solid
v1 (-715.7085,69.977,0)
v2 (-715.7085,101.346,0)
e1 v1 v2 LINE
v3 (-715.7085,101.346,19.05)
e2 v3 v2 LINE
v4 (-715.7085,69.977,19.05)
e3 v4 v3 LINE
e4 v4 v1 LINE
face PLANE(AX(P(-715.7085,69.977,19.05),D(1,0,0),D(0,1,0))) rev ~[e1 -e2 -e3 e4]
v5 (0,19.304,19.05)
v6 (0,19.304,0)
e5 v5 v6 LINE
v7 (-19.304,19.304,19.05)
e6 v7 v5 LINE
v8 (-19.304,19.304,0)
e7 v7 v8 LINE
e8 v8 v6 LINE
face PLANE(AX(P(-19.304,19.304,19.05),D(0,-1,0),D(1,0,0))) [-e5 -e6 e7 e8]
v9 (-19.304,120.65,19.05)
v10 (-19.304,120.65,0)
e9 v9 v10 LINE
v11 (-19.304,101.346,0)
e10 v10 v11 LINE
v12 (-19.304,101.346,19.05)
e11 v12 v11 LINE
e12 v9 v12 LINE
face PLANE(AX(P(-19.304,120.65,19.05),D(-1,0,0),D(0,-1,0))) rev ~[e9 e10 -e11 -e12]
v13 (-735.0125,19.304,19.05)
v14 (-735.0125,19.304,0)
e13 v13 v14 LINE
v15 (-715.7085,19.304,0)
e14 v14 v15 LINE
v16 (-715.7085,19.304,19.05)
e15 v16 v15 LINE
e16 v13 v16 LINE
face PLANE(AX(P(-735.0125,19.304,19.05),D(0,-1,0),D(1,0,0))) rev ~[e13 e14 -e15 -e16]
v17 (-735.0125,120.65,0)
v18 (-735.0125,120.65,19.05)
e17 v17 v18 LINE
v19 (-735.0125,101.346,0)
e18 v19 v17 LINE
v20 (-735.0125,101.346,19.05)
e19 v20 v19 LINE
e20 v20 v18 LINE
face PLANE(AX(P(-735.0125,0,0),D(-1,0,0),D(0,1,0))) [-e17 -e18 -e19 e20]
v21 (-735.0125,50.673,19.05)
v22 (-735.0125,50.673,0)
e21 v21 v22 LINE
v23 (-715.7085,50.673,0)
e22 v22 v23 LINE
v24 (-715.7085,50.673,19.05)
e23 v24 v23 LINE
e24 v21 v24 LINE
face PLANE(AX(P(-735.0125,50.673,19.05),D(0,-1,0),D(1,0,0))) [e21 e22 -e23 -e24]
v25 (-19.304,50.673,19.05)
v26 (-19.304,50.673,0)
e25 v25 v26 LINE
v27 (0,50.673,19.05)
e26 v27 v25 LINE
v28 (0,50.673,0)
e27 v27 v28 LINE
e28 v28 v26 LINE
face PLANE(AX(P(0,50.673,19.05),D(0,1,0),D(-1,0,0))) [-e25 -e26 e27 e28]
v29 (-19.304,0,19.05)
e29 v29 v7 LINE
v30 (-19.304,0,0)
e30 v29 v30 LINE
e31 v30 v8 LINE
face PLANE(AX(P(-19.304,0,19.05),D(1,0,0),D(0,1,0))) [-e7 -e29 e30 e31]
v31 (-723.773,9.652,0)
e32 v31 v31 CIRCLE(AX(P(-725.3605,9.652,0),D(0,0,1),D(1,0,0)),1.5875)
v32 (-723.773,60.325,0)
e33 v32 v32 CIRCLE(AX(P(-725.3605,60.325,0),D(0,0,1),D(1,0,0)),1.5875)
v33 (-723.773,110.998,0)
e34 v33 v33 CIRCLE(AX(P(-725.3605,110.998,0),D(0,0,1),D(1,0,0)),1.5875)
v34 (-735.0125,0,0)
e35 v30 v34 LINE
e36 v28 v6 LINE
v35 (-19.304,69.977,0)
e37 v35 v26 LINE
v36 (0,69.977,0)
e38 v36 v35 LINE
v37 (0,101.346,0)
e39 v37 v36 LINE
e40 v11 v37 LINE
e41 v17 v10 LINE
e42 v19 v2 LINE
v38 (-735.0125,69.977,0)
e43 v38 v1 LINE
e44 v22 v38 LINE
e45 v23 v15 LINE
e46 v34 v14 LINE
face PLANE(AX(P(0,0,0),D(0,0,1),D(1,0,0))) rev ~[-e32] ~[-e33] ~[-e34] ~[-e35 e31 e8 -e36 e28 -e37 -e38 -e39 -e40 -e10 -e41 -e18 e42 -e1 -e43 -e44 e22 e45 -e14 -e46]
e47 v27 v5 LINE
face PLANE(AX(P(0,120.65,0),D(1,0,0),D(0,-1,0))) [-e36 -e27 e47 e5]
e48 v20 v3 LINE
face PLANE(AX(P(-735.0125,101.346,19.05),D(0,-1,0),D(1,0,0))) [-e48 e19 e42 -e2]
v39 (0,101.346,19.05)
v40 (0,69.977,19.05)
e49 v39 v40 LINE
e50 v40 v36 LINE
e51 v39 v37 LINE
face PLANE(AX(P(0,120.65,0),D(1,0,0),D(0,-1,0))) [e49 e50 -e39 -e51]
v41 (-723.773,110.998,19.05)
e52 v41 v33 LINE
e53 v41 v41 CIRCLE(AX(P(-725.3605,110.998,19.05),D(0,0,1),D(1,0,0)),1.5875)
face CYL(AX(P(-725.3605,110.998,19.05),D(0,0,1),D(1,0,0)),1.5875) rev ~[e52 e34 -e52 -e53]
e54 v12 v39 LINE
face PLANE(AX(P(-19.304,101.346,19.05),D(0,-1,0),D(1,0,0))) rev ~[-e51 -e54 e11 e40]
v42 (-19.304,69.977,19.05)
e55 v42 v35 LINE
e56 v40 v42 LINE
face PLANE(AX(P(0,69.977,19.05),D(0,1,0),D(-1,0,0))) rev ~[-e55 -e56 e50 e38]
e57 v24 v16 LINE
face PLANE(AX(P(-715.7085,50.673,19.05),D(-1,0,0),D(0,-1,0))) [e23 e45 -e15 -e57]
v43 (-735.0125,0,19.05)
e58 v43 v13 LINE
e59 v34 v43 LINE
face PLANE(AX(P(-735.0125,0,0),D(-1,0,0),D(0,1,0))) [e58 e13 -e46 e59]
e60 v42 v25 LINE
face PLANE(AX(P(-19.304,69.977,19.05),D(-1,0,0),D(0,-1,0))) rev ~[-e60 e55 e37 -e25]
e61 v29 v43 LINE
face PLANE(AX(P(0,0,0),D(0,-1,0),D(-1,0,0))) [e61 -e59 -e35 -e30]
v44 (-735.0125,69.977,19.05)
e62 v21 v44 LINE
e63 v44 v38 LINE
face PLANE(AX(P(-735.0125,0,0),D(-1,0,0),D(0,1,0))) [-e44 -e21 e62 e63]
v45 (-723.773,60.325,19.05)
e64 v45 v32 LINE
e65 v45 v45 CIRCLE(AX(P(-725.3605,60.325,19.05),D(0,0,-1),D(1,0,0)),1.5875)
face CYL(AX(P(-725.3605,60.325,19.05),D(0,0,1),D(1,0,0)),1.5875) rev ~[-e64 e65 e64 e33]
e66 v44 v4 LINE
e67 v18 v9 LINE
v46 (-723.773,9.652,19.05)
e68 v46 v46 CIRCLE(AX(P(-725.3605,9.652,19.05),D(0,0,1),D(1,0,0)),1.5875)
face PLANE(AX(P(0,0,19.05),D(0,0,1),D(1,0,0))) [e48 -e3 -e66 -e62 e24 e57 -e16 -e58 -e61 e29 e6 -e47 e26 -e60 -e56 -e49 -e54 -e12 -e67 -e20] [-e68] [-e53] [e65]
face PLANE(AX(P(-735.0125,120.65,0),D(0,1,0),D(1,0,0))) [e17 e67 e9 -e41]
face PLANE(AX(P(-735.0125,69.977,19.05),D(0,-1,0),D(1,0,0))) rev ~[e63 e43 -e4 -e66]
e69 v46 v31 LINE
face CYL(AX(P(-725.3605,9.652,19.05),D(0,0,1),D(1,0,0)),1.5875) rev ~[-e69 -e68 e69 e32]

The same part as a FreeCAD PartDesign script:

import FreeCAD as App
import Part
import Sketcher
Q = App.Units.Quantity

doc = App.newDocument("Part")
params = doc.addObject("Spreadsheet::Sheet", "Params")
for row, (alias, value) in enumerate([
    ("sketch1_height", "4.75 in"),
    ("sketch1_width", "28.9375 in"),
    ("pad1_length", "0.75 in"),
    ("sketch2_diameter", "0.125 in"),
    ("sketch2_width", "0.76 in"),
    ("sketch2_height", "1.235 in"),
], start=1):
    params.set(f"A{row}", alias)
    params.set(f"B{row}", "=" + value)
    params.setAlias(f"B{row}", alias)

body = doc.addObject("PartDesign::Body", "Body")

sketch1 = body.newObject("Sketcher::SketchObject", "Sketch")
sketch1.AttachmentSupport = (doc.getObject("XY_Plane"), [""])
sketch1.MapMode = "FlatFace"
sketch1.addGeometry([
    Part.LineSegment(App.Vector(-735.0125, 0, 0), App.Vector(0, 0, 0)),
    Part.LineSegment(App.Vector(0, 0, 0), App.Vector(0, 120.65, 0)),
    Part.LineSegment(App.Vector(0, 120.65, 0), App.Vector(-735.0125, 120.65, 0)),
    Part.LineSegment(App.Vector(-735.0125, 120.65, 0), App.Vector(-735.0125, 0, 0)),
], False)
sketch1.addConstraint([
    Sketcher.Constraint("Coincident", 0, 2, 1, 1),
    Sketcher.Constraint("Coincident", 1, 2, 2, 1),
    Sketcher.Constraint("Coincident", 2, 2, 3, 1),
    Sketcher.Constraint("Coincident", 3, 2, 0, 1),
    Sketcher.Constraint("Horizontal", 0),
    Sketcher.Constraint("Vertical", 1),
    Sketcher.Constraint("Horizontal", 2),
    Sketcher.Constraint("Vertical", 3),
    Sketcher.Constraint("Coincident", 0, 2, -1, 1),
    Sketcher.Constraint("DistanceY", 1, 1, 1, 2, Q("4.75 in")),
    Sketcher.Constraint("DistanceX", 0, 1, 0, 2, Q("28.9375 in")),
])
sketch1.setExpression("Constraints[9]", "Params.sketch1_height")
sketch1.setExpression("Constraints[10]", "Params.sketch1_width")
pad1 = body.newObject("PartDesign::Pad", "Pad")
pad1.Profile = sketch1
pad1.setExpression("Length", "Params.pad1_length")

sketch2 = body.newObject("Sketcher::SketchObject", "Sketch001")
sketch2.AttachmentSupport = (doc.getObject("XY_Plane"), [""])
sketch2.MapMode = "FlatFace"
sketch2.AttachmentOffset = App.Placement(App.Vector(0, 0, 0.75 * 25.4), App.Rotation())
sketch2.addGeometry([
    Part.LineSegment(App.Vector(0, 101.346, 0), App.Vector(0, 120.65, 0)),
    Part.LineSegment(App.Vector(0, 120.65, 0), App.Vector(-19.304, 120.65, 0)),
    Part.LineSegment(App.Vector(-19.304, 120.65, 0), App.Vector(-19.304, 101.346, 0)),
    Part.LineSegment(App.Vector(-19.304, 101.346, 0), App.Vector(0, 101.346, 0)),
    Part.Circle(App.Vector(-725.3605, 60.325, 0), App.Vector(0, 0, 1), 1.5875),
    Part.LineSegment(App.Vector(0, 69.977, 0), App.Vector(-19.304, 69.977, 0)),
    Part.LineSegment(App.Vector(-19.304, 69.977, 0), App.Vector(-19.304, 50.673, 0)),
    Part.LineSegment(App.Vector(-19.304, 50.673, 0), App.Vector(0, 50.673, 0)),
    Part.LineSegment(App.Vector(0, 50.673, 0), App.Vector(0, 69.977, 0)),
    Part.LineSegment(App.Vector(-715.7085, 101.346, 0), App.Vector(-735.0125, 101.346, 0)),
    Part.LineSegment(App.Vector(-735.0125, 101.346, 0), App.Vector(-735.0125, 69.977, 0)),
    Part.LineSegment(App.Vector(-735.0125, 69.977, 0), App.Vector(-715.7085, 69.977, 0)),
    Part.LineSegment(App.Vector(-715.7085, 69.977, 0), App.Vector(-715.7085, 101.346, 0)),
    Part.LineSegment(App.Vector(0, 0, 0), App.Vector(0, 19.304, 0)),
    Part.LineSegment(App.Vector(0, 19.304, 0), App.Vector(-19.304, 19.304, 0)),
    Part.LineSegment(App.Vector(-19.304, 19.304, 0), App.Vector(-19.304, 0, 0)),
    Part.LineSegment(App.Vector(-19.304, 0, 0), App.Vector(0, 0, 0)),
    Part.LineSegment(App.Vector(-715.7085, 50.673, 0), App.Vector(-735.0125, 50.673, 0)),
    Part.LineSegment(App.Vector(-735.0125, 50.673, 0), App.Vector(-735.0125, 19.304, 0)),
    Part.LineSegment(App.Vector(-735.0125, 19.304, 0), App.Vector(-715.7085, 19.304, 0)),
    Part.LineSegment(App.Vector(-715.7085, 19.304, 0), App.Vector(-715.7085, 50.673, 0)),
    Part.Circle(App.Vector(-725.3605, 110.998, 0), App.Vector(0, 0, 1), 1.5875),
    Part.Circle(App.Vector(-725.3605, 9.652, 0), App.Vector(0, 0, 1), 1.5875),
], False)
sketch2.addConstraint([
    Sketcher.Constraint("Coincident", 0, 2, 1, 1),
    Sketcher.Constraint("Coincident", 1, 2, 2, 1),
    Sketcher.Constraint("Coincident", 2, 2, 3, 1),
    Sketcher.Constraint("Coincident", 3, 2, 0, 1),
    Sketcher.Constraint("Coincident", 5, 2, 6, 1),
    Sketcher.Constraint("Coincident", 6, 2, 7, 1),
    Sketcher.Constraint("Coincident", 7, 2, 8, 1),
    Sketcher.Constraint("Coincident", 8, 2, 5, 1),
    Sketcher.Constraint("Coincident", 9, 2, 10, 1),
    Sketcher.Constraint("Coincident", 10, 2, 11, 1),
    Sketcher.Constraint("Coincident", 11, 2, 12, 1),
    Sketcher.Constraint("Coincident", 12, 2, 9, 1),
    Sketcher.Constraint("Coincident", 13, 2, 14, 1),
    Sketcher.Constraint("Coincident", 14, 2, 15, 1),
    Sketcher.Constraint("Coincident", 15, 2, 16, 1),
    Sketcher.Constraint("Coincident", 16, 2, 13, 1),
    Sketcher.Constraint("Coincident", 17, 2, 18, 1),
    Sketcher.Constraint("Coincident", 18, 2, 19, 1),
    Sketcher.Constraint("Coincident", 19, 2, 20, 1),
    Sketcher.Constraint("Coincident", 20, 2, 17, 1),
    Sketcher.Constraint("Vertical", 0),
    Sketcher.Constraint("Horizontal", 1),
    Sketcher.Constraint("Vertical", 2),
    Sketcher.Constraint("Horizontal", 3),
    Sketcher.Constraint("Horizontal", 5),
    Sketcher.Constraint("Vertical", 6),
    Sketcher.Constraint("Horizontal", 7),
    Sketcher.Constraint("Vertical", 8),
    Sketcher.Constraint("Horizontal", 9),
    Sketcher.Constraint("Vertical", 10),
    Sketcher.Constraint("Horizontal", 11),
    Sketcher.Constraint("Vertical", 12),
    Sketcher.Constraint("Vertical", 13),
    Sketcher.Constraint("Horizontal", 14),
    Sketcher.Constraint("Vertical", 15),
    Sketcher.Constraint("Horizontal", 16),
    Sketcher.Constraint("Horizontal", 17),
    Sketcher.Constraint("Vertical", 18),
    Sketcher.Constraint("Horizontal", 19),
    Sketcher.Constraint("Vertical", 20),
    Sketcher.Constraint("Coincident", 16, 2, -1, 1),
    Sketcher.Constraint("Equal", 4, 21),
    Sketcher.Constraint("Equal", 21, 22),
    Sketcher.Constraint("PointOnObject", 0, 2, -2),
    Sketcher.Constraint("PointOnObject", 7, 2, -2),
    Sketcher.Constraint("Horizontal", 3, 2, 9, 2),
    Sketcher.Constraint("Horizontal", 8, 2, 10, 2),
    Sketcher.Constraint("Horizontal", 7, 2, 17, 2),
    Sketcher.Constraint("Horizontal", 14, 2, 18, 2),
    Sketcher.Constraint("Vertical", 4, 3, 21, 3),
    Sketcher.Constraint("Vertical", 21, 3, 22, 3),
    Sketcher.Constraint("Vertical", 2, 2, 5, 2),
    Sketcher.Constraint("Vertical", 6, 2, 14, 2),
    Sketcher.Constraint("Vertical", 10, 2, 17, 2),
    Sketcher.Constraint("Vertical", 12, 2, 19, 2),
    Sketcher.Constraint("Equal", 7, 9),
    Sketcher.Constraint("Equal", 19, 0),
    Sketcher.Constraint("Equal", 2, 6),
    Sketcher.Constraint("Equal", 8, 13),
    Sketcher.Constraint("Equal", 12, 18),
    Sketcher.Constraint("Diameter", 4, Q("0.125 in")),
    Sketcher.Constraint("DistanceX", 1, 2, 1, 1, Q("0.76 in")),
    Sketcher.Constraint("DistanceY", 10, 2, 10, 1, Q("1.235 in")),
    Sketcher.Constraint("DistanceY", -1, 1, 22, 3, Q("0.38 in")),
    Sketcher.Constraint("DistanceY", 21, 3, 0, 2, Q("0.38 in")),
    Sketcher.Constraint("DistanceY", 4, 3, 5, 2, Q("0.38 in")),
    Sketcher.Constraint("DistanceX", 9, 2, 21, 3, Q("0.38 in")),
    Sketcher.Constraint("DistanceX", 9, 2, -1, 1, Q("28.9375 in")),
])
sketch2.setExpression("Constraints[60]", "Params.sketch2_diameter")
sketch2.setExpression("Constraints[61]", "Params.sketch2_width")
sketch2.setExpression("Constraints[62]", "Params.sketch2_height")
pocket1 = body.newObject("PartDesign::Pocket", "Pocket")
pocket1.Profile = sketch2
pocket1.Type = "ThroughAll"

doc.recompute()
